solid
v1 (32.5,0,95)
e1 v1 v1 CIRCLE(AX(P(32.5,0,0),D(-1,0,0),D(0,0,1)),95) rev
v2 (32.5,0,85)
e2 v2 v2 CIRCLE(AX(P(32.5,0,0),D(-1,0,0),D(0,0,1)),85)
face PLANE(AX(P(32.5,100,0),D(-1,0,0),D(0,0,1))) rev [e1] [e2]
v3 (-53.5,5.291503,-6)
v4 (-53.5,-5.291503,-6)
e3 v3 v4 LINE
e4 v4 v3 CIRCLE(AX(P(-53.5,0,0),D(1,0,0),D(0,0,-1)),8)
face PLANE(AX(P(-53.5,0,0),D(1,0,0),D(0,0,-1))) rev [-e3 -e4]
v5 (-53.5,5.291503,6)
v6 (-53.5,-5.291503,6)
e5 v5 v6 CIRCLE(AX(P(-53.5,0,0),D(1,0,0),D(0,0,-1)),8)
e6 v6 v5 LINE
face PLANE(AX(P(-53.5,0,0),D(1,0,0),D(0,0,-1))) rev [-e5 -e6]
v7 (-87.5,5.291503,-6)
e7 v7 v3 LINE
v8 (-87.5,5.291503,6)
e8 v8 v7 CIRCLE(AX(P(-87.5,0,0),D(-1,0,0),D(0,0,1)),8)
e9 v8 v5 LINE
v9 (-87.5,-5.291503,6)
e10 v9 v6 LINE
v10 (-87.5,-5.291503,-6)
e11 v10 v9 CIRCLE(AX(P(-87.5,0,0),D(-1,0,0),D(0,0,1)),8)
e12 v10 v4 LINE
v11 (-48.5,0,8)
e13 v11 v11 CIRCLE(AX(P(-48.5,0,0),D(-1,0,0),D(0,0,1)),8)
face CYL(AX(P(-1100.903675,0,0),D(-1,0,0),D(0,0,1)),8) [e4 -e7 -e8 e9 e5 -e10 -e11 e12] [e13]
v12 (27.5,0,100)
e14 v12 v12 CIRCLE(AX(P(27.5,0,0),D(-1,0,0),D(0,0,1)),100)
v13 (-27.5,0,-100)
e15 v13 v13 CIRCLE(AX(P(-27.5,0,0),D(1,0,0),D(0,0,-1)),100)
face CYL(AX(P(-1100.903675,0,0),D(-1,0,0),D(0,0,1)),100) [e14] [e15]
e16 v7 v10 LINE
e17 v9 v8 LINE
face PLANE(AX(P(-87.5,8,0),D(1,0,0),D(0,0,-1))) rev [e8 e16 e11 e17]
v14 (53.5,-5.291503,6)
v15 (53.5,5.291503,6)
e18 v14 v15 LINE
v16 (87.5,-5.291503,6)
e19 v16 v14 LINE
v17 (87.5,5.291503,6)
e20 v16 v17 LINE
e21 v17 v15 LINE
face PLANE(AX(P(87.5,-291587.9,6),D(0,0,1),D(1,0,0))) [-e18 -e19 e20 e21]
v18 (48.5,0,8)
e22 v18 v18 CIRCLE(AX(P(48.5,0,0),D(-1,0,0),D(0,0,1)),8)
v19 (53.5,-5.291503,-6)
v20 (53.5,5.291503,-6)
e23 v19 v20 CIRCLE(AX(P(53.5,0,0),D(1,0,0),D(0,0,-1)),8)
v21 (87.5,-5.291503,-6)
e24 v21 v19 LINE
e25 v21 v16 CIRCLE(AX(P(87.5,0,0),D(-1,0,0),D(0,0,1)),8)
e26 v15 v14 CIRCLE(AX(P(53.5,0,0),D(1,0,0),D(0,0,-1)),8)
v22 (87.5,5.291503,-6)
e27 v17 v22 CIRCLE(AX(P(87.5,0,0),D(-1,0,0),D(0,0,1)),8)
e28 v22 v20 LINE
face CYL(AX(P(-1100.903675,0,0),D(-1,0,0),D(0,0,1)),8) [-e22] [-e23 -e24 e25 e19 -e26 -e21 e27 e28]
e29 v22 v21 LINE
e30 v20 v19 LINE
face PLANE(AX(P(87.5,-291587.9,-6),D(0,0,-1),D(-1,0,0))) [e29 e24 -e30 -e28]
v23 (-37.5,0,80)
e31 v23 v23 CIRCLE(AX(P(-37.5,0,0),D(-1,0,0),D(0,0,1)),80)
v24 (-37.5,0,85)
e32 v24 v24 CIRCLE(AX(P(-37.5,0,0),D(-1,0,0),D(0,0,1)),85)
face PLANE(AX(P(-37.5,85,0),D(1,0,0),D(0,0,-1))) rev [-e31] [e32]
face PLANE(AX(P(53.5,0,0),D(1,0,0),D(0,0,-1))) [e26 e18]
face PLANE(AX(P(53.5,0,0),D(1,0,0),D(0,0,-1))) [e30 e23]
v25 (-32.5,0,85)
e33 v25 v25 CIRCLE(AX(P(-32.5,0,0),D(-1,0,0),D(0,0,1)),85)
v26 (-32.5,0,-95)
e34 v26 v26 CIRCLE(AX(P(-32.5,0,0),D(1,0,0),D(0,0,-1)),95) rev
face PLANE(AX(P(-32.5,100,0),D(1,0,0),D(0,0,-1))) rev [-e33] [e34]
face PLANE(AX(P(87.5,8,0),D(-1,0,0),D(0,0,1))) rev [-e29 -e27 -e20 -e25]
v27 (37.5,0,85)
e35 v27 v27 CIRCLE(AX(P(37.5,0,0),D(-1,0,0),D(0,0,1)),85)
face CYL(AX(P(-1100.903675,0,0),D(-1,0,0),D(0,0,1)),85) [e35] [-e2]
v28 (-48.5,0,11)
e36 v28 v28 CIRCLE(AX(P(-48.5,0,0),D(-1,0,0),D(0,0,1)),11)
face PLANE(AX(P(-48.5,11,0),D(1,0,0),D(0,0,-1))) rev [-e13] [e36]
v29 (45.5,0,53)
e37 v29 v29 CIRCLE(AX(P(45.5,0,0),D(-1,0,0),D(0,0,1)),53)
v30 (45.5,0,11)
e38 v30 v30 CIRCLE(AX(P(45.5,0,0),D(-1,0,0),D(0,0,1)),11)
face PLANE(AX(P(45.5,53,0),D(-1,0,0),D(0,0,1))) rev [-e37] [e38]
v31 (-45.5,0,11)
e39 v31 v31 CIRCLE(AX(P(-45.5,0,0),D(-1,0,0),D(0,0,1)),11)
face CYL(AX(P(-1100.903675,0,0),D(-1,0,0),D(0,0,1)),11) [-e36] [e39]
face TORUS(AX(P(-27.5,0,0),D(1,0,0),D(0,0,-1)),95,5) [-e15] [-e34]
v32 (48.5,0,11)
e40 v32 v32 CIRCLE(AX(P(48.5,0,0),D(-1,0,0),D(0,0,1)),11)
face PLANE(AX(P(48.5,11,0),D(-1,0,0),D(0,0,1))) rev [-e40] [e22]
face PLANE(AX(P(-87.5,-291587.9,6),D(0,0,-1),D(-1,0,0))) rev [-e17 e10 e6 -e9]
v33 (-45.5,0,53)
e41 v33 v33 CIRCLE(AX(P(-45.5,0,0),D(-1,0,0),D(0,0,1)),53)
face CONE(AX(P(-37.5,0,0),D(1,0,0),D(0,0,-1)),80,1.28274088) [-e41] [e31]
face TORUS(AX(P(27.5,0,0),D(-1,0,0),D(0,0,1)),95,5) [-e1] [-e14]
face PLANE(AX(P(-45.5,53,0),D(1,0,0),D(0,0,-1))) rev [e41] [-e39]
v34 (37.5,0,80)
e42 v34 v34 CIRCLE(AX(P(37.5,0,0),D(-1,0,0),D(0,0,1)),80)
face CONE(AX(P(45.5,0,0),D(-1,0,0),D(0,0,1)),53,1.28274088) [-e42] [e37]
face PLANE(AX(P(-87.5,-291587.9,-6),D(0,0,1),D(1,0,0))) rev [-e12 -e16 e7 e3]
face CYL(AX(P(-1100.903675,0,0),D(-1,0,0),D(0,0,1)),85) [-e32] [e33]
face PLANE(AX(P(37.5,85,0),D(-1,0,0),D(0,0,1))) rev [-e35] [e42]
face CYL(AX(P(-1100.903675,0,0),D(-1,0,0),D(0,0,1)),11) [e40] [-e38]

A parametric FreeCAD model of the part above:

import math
import FreeCAD as App
import Part
import Sketcher


def edges_at(feature, points):
    """Names of the edges that pass closest to the given points."""
    edges = feature.Shape.Edges
    near = lambda p: min(range(len(edges)), key=lambda i: edges[i].distToShape(Part.Vertex(*p))[0])
    return sorted({f"Edge{near(p) + 1}" for p in points})


def add_polygon(sketch, points):
    """Adds a closed chain of lines whose ends are joined by coincident constraints."""
    first, n = sketch.GeometryCount, len(points)
    for a, b in zip(points, points[1:] + points[:1]):
        sketch.addGeometry(Part.LineSegment(App.Vector(*a, 0), App.Vector(*b, 0)), False)
    for i in range(n):
        sketch.addConstraint(Sketcher.Constraint("Coincident", first + i, 2, first + (i + 1) % n, 1))

doc = App.newDocument("Part")
body = doc.addObject("PartDesign::Body", "Body")

# Sketch on XY plane
sketch1 = body.newObject("Sketcher::SketchObject", "Sketch")
sketch1.AttachmentSupport = (doc.getObject("XY_Plane"), [""])
sketch1.MapMode = "FlatFace"
add_polygon(sketch1, [(32.5, 100), (-32.5, 100), (-32.5, 85), (-37.5, 85), (-37.5, 80), (-45.5, 53), (-45.5, 11), (-48.5, 11), (-48.5, 8), (-87.5, 8), (-87.5, 0), (87.5, 0), (87.5, 8), (48.5, 8), (48.5, 11), (45.5, 11), (45.5, 53), (37.5, 80), (37.5, 85), (32.5, 85)])  # lines 0-19
sketch1.addConstraint(Sketcher.Constraint("Horizontal", 0))
sketch1.addConstraint(Sketcher.Constraint("Vertical", 1))
sketch1.addConstraint(Sketcher.Constraint("Horizontal", 2))
sketch1.addConstraint(Sketcher.Constraint("Vertical", 3))
sketch1.addConstraint(Sketcher.Constraint("Vertical", 5))
sketch1.addConstraint(Sketcher.Constraint("Horizontal", 6))
sketch1.addConstraint(Sketcher.Constraint("Vertical", 7))
sketch1.addConstraint(Sketcher.Constraint("Horizontal", 8))
sketch1.addConstraint(Sketcher.Constraint("Vertical", 9))
sketch1.addConstraint(Sketcher.Constraint("Horizontal", 10))
sketch1.addConstraint(Sketcher.Constraint("Vertical", 11))
sketch1.addConstraint(Sketcher.Constraint("Horizontal", 12))
sketch1.addConstraint(Sketcher.Constraint("Vertical", 13))
sketch1.addConstraint(Sketcher.Constraint("Horizontal", 14))
sketch1.addConstraint(Sketcher.Constraint("Vertical", 15))
sketch1.addConstraint(Sketcher.Constraint("Vertical", 17))
sketch1.addConstraint(Sketcher.Constraint("Horizontal", 18))
sketch1.addConstraint(Sketcher.Constraint("Vertical", 19))
sketch1.addConstraint(Sketcher.Constraint("Symmetric", 9, 2, 10, 2, -1, 1))
sketch1.addConstraint(Sketcher.Constraint("Symmetric", 7, 2, 12, 2, -2))
sketch1.addConstraint(Sketcher.Constraint("Symmetric", 5, 2, 14, 2, -2))
sketch1.addConstraint(Sketcher.Constraint("Symmetric", 3, 2, 16, 2, -2))
sketch1.addConstraint(Sketcher.Constraint("Symmetric", 1, 2, 18, 2, -2))
sketch1.addConstraint(Sketcher.Constraint("Horizontal", 4, 2, 15, 2))
sketch1.addConstraint(Sketcher.Constraint("Equal", 18, 3))
sketch1.addConstraint(Sketcher.Constraint("Equal", 14, 7))
sketch1.addConstraint(Sketcher.Constraint("DistanceX", 0, 2, 0, 1, 65.0))
sketch1.addConstraint(Sketcher.Constraint("DistanceX", 2, 2, 2, 1, 5.0))
sketch1.addConstraint(Sketcher.Constraint("DistanceX", 6, 2, 6, 1, 3.0))
sketch1.addConstraint(Sketcher.Constraint("DistanceX", 8, 2, 8, 1, 39.0))
sketch1.addConstraint(Sketcher.Constraint("DistanceX", 10, 1, 10, 2, 175.0))
sketch1.addConstraint(Sketcher.Constraint("DistanceY", 1, 2, 1, 1, 15.0))
sketch1.addConstraint(Sketcher.Constraint("DistanceY", 5, 2, 5, 1, 42.0))
sketch1.addConstraint(Sketcher.Constraint("DistanceY", 9, 2, 9, 1, 8.0))
sketch1.addConstraint(Sketcher.Constraint("DistanceY", -1, 1, 0, 2, 100.0))
revolution = body.newObject("PartDesign::Revolution", "Revolution")
revolution.Profile = sketch1
revolution.ReferenceAxis = (sketch1, ["H_Axis"])
revolution.Angle = 360
doc.recompute()

fillet = body.newObject("PartDesign::Fillet", "Fillet")
fillet.Base = (revolution, edges_at(revolution, [(32.5, -100, 0), (-32.5, -100, 0)]))
fillet.Radius = 5

# Sketch on YZ plane
sketch2 = body.newObject("Sketcher::SketchObject", "Sketch001")
sketch2.AttachmentSupport = (doc.getObject("YZ_Plane"), [""])
sketch2.MapMode = "FlatFace"
sketch2.AttachmentOffset = App.Placement(App.Vector(0, 0, -53.5), App.Rotation())
add_polygon(sketch2, [(134, 134), (-134, 134), (-134, -134), (134, -134)])  # lines 0-3
sketch2.addGeometry(Part.LineSegment(App.Vector(-5, 6, 0), App.Vector(5, 6, 0)), False)  # 4
sketch2.addGeometry(Part.ArcOfCircle(Part.Circle(App.Vector(0, 0, 0), App.Vector(0, 0, 1), 8), math.radians(-49), math.radians(49)), False)  # 5
sketch2.addGeometry(Part.LineSegment(App.Vector(5, -6, 0), App.Vector(-5, -6, 0)), False)  # 6
sketch2.addGeometry(Part.ArcOfCircle(Part.Circle(App.Vector(0, 0, 0), App.Vector(0, 0, 1), 8), math.radians(131), math.radians(229)), False)  # 7
sketch2.addConstraint(Sketcher.Constraint("Coincident", 4, 2, 5, 2))
sketch2.addConstraint(Sketcher.Constraint("Coincident", 5, 1, 6, 1))
sketch2.addConstraint(Sketcher.Constraint("Coincident", 6, 2, 7, 2))
sketch2.addConstraint(Sketcher.Constraint("Coincident", 7, 1, 4, 1))
sketch2.addConstraint(Sketcher.Constraint("Horizontal", 0))
sketch2.addConstraint(Sketcher.Constraint("Vertical", 1))
sketch2.addConstraint(Sketcher.Constraint("Horizontal", 2))
sketch2.addConstraint(Sketcher.Constraint("Vertical", 3))
sketch2.addConstraint(Sketcher.Constraint("Horizontal", 4))
sketch2.addConstraint(Sketcher.Constraint("Horizontal", 6))
sketch2.addConstraint(Sketcher.Constraint("Coincident", 5, 3, -1, 1))
sketch2.addConstraint(Sketcher.Constraint("Coincident", 7, 3, -1, 1))
sketch2.addConstraint(Sketcher.Constraint("Equal", 5, 7))
sketch2.addConstraint(Sketcher.Constraint("Symmetric", 0, 2, 2, 2, -1, 1))
sketch2.addConstraint(Sketcher.Constraint("Vertical", 4, 2, 5, 1))
sketch2.addConstraint(Sketcher.Constraint("Equal", 2, 1))
sketch2.addConstraint(Sketcher.Constraint("Radius", 5, 8.0))
sketch2.addConstraint(Sketcher.Constraint("DistanceY", -1, 1, 4, 2, 6.0))
sketch2.addConstraint(Sketcher.Constraint("DistanceX", 0, 2, 0, 1, 268.52))
pocket1 = body.newObject("PartDesign::Pocket", "Pocket")
pocket1.Profile = sketch2
pocket1.Type = "ThroughAll"

# Sketch on YZ plane
sketch3 = body.newObject("Sketcher::SketchObject", "Sketch002")
sketch3.AttachmentSupport = (doc.getObject("YZ_Plane"), [""])
sketch3.MapMode = "FlatFace"
sketch3.AttachmentOffset = App.Placement(App.Vector(0, 0, 53.5), App.Rotation())
add_polygon(sketch3, [(134, 134), (-134, 134), (-134, -134), (134, -134)])  # lines 0-3
sketch3.addGeometry(Part.LineSegment(App.Vector(-5, 6, 0), App.Vector(5, 6, 0)), False)  # 4
sketch3.addGeometry(Part.ArcOfCircle(Part.Circle(App.Vector(0, 0, 0), App.Vector(0, 0, 1), 8), math.radians(-49), math.radians(49)), False)  # 5
sketch3.addGeometry(Part.LineSegment(App.Vector(5, -6, 0), App.Vector(-5, -6, 0)), False)  # 6
sketch3.addGeometry(Part.ArcOfCircle(Part.Circle(App.Vector(0, 0, 0), App.Vector(0, 0, 1), 8), math.radians(131), math.radians(229)), False)  # 7
sketch3.addConstraint(Sketcher.Constraint("Coincident", 4, 2, 5, 2))
sketch3.addConstraint(Sketcher.Constraint("Coincident", 5, 1, 6, 1))
sketch3.addConstraint(Sketcher.Constraint("Coincident", 6, 2, 7, 2))
sketch3.addConstraint(Sketcher.Constraint("Coincident", 7, 1, 4, 1))
sketch3.addConstraint(Sketcher.Constraint("Horizontal", 0))
sketch3.addConstraint(Sketcher.Constraint("Vertical", 1))
sketch3.addConstraint(Sketcher.Constraint("Horizontal", 2))
sketch3.addConstraint(Sketcher.Constraint("Vertical", 3))
sketch3.addConstraint(Sketcher.Constraint("Horizontal", 4))
sketch3.addConstraint(Sketcher.Constraint("Horizontal", 6))
sketch3.addConstraint(Sketcher.Constraint("Coincident", 5, 3, -1, 1))
sketch3.addConstraint(Sketcher.Constraint("Coincident", 7, 3, -1, 1))
sketch3.addConstraint(Sketcher.Constraint("Equal", 5, 7))
sketch3.addConstraint(Sketcher.Constraint("Symmetric", 0, 2, 2, 2, -1, 1))
sketch3.addConstraint(Sketcher.Constraint("Vertical", 4, 2, 5, 1))
sketch3.addConstraint(Sketcher.Constraint("Equal", 2, 1))
sketch3.addConstraint(Sketcher.Constraint("Radius", 5, 8.0))
sketch3.addConstraint(Sketcher.Constraint("DistanceY", -1, 1, 4, 2, 6.0))
sketch3.addConstraint(Sketcher.Constraint("DistanceX", 0, 2, 0, 1, 268.52))
pocket2 = body.newObject("PartDesign::Pocket", "Pocket001")
pocket2.Profile = sketch3
pocket2.Type = "ThroughAll"
pocket2.Reversed = True

doc.recompute()
